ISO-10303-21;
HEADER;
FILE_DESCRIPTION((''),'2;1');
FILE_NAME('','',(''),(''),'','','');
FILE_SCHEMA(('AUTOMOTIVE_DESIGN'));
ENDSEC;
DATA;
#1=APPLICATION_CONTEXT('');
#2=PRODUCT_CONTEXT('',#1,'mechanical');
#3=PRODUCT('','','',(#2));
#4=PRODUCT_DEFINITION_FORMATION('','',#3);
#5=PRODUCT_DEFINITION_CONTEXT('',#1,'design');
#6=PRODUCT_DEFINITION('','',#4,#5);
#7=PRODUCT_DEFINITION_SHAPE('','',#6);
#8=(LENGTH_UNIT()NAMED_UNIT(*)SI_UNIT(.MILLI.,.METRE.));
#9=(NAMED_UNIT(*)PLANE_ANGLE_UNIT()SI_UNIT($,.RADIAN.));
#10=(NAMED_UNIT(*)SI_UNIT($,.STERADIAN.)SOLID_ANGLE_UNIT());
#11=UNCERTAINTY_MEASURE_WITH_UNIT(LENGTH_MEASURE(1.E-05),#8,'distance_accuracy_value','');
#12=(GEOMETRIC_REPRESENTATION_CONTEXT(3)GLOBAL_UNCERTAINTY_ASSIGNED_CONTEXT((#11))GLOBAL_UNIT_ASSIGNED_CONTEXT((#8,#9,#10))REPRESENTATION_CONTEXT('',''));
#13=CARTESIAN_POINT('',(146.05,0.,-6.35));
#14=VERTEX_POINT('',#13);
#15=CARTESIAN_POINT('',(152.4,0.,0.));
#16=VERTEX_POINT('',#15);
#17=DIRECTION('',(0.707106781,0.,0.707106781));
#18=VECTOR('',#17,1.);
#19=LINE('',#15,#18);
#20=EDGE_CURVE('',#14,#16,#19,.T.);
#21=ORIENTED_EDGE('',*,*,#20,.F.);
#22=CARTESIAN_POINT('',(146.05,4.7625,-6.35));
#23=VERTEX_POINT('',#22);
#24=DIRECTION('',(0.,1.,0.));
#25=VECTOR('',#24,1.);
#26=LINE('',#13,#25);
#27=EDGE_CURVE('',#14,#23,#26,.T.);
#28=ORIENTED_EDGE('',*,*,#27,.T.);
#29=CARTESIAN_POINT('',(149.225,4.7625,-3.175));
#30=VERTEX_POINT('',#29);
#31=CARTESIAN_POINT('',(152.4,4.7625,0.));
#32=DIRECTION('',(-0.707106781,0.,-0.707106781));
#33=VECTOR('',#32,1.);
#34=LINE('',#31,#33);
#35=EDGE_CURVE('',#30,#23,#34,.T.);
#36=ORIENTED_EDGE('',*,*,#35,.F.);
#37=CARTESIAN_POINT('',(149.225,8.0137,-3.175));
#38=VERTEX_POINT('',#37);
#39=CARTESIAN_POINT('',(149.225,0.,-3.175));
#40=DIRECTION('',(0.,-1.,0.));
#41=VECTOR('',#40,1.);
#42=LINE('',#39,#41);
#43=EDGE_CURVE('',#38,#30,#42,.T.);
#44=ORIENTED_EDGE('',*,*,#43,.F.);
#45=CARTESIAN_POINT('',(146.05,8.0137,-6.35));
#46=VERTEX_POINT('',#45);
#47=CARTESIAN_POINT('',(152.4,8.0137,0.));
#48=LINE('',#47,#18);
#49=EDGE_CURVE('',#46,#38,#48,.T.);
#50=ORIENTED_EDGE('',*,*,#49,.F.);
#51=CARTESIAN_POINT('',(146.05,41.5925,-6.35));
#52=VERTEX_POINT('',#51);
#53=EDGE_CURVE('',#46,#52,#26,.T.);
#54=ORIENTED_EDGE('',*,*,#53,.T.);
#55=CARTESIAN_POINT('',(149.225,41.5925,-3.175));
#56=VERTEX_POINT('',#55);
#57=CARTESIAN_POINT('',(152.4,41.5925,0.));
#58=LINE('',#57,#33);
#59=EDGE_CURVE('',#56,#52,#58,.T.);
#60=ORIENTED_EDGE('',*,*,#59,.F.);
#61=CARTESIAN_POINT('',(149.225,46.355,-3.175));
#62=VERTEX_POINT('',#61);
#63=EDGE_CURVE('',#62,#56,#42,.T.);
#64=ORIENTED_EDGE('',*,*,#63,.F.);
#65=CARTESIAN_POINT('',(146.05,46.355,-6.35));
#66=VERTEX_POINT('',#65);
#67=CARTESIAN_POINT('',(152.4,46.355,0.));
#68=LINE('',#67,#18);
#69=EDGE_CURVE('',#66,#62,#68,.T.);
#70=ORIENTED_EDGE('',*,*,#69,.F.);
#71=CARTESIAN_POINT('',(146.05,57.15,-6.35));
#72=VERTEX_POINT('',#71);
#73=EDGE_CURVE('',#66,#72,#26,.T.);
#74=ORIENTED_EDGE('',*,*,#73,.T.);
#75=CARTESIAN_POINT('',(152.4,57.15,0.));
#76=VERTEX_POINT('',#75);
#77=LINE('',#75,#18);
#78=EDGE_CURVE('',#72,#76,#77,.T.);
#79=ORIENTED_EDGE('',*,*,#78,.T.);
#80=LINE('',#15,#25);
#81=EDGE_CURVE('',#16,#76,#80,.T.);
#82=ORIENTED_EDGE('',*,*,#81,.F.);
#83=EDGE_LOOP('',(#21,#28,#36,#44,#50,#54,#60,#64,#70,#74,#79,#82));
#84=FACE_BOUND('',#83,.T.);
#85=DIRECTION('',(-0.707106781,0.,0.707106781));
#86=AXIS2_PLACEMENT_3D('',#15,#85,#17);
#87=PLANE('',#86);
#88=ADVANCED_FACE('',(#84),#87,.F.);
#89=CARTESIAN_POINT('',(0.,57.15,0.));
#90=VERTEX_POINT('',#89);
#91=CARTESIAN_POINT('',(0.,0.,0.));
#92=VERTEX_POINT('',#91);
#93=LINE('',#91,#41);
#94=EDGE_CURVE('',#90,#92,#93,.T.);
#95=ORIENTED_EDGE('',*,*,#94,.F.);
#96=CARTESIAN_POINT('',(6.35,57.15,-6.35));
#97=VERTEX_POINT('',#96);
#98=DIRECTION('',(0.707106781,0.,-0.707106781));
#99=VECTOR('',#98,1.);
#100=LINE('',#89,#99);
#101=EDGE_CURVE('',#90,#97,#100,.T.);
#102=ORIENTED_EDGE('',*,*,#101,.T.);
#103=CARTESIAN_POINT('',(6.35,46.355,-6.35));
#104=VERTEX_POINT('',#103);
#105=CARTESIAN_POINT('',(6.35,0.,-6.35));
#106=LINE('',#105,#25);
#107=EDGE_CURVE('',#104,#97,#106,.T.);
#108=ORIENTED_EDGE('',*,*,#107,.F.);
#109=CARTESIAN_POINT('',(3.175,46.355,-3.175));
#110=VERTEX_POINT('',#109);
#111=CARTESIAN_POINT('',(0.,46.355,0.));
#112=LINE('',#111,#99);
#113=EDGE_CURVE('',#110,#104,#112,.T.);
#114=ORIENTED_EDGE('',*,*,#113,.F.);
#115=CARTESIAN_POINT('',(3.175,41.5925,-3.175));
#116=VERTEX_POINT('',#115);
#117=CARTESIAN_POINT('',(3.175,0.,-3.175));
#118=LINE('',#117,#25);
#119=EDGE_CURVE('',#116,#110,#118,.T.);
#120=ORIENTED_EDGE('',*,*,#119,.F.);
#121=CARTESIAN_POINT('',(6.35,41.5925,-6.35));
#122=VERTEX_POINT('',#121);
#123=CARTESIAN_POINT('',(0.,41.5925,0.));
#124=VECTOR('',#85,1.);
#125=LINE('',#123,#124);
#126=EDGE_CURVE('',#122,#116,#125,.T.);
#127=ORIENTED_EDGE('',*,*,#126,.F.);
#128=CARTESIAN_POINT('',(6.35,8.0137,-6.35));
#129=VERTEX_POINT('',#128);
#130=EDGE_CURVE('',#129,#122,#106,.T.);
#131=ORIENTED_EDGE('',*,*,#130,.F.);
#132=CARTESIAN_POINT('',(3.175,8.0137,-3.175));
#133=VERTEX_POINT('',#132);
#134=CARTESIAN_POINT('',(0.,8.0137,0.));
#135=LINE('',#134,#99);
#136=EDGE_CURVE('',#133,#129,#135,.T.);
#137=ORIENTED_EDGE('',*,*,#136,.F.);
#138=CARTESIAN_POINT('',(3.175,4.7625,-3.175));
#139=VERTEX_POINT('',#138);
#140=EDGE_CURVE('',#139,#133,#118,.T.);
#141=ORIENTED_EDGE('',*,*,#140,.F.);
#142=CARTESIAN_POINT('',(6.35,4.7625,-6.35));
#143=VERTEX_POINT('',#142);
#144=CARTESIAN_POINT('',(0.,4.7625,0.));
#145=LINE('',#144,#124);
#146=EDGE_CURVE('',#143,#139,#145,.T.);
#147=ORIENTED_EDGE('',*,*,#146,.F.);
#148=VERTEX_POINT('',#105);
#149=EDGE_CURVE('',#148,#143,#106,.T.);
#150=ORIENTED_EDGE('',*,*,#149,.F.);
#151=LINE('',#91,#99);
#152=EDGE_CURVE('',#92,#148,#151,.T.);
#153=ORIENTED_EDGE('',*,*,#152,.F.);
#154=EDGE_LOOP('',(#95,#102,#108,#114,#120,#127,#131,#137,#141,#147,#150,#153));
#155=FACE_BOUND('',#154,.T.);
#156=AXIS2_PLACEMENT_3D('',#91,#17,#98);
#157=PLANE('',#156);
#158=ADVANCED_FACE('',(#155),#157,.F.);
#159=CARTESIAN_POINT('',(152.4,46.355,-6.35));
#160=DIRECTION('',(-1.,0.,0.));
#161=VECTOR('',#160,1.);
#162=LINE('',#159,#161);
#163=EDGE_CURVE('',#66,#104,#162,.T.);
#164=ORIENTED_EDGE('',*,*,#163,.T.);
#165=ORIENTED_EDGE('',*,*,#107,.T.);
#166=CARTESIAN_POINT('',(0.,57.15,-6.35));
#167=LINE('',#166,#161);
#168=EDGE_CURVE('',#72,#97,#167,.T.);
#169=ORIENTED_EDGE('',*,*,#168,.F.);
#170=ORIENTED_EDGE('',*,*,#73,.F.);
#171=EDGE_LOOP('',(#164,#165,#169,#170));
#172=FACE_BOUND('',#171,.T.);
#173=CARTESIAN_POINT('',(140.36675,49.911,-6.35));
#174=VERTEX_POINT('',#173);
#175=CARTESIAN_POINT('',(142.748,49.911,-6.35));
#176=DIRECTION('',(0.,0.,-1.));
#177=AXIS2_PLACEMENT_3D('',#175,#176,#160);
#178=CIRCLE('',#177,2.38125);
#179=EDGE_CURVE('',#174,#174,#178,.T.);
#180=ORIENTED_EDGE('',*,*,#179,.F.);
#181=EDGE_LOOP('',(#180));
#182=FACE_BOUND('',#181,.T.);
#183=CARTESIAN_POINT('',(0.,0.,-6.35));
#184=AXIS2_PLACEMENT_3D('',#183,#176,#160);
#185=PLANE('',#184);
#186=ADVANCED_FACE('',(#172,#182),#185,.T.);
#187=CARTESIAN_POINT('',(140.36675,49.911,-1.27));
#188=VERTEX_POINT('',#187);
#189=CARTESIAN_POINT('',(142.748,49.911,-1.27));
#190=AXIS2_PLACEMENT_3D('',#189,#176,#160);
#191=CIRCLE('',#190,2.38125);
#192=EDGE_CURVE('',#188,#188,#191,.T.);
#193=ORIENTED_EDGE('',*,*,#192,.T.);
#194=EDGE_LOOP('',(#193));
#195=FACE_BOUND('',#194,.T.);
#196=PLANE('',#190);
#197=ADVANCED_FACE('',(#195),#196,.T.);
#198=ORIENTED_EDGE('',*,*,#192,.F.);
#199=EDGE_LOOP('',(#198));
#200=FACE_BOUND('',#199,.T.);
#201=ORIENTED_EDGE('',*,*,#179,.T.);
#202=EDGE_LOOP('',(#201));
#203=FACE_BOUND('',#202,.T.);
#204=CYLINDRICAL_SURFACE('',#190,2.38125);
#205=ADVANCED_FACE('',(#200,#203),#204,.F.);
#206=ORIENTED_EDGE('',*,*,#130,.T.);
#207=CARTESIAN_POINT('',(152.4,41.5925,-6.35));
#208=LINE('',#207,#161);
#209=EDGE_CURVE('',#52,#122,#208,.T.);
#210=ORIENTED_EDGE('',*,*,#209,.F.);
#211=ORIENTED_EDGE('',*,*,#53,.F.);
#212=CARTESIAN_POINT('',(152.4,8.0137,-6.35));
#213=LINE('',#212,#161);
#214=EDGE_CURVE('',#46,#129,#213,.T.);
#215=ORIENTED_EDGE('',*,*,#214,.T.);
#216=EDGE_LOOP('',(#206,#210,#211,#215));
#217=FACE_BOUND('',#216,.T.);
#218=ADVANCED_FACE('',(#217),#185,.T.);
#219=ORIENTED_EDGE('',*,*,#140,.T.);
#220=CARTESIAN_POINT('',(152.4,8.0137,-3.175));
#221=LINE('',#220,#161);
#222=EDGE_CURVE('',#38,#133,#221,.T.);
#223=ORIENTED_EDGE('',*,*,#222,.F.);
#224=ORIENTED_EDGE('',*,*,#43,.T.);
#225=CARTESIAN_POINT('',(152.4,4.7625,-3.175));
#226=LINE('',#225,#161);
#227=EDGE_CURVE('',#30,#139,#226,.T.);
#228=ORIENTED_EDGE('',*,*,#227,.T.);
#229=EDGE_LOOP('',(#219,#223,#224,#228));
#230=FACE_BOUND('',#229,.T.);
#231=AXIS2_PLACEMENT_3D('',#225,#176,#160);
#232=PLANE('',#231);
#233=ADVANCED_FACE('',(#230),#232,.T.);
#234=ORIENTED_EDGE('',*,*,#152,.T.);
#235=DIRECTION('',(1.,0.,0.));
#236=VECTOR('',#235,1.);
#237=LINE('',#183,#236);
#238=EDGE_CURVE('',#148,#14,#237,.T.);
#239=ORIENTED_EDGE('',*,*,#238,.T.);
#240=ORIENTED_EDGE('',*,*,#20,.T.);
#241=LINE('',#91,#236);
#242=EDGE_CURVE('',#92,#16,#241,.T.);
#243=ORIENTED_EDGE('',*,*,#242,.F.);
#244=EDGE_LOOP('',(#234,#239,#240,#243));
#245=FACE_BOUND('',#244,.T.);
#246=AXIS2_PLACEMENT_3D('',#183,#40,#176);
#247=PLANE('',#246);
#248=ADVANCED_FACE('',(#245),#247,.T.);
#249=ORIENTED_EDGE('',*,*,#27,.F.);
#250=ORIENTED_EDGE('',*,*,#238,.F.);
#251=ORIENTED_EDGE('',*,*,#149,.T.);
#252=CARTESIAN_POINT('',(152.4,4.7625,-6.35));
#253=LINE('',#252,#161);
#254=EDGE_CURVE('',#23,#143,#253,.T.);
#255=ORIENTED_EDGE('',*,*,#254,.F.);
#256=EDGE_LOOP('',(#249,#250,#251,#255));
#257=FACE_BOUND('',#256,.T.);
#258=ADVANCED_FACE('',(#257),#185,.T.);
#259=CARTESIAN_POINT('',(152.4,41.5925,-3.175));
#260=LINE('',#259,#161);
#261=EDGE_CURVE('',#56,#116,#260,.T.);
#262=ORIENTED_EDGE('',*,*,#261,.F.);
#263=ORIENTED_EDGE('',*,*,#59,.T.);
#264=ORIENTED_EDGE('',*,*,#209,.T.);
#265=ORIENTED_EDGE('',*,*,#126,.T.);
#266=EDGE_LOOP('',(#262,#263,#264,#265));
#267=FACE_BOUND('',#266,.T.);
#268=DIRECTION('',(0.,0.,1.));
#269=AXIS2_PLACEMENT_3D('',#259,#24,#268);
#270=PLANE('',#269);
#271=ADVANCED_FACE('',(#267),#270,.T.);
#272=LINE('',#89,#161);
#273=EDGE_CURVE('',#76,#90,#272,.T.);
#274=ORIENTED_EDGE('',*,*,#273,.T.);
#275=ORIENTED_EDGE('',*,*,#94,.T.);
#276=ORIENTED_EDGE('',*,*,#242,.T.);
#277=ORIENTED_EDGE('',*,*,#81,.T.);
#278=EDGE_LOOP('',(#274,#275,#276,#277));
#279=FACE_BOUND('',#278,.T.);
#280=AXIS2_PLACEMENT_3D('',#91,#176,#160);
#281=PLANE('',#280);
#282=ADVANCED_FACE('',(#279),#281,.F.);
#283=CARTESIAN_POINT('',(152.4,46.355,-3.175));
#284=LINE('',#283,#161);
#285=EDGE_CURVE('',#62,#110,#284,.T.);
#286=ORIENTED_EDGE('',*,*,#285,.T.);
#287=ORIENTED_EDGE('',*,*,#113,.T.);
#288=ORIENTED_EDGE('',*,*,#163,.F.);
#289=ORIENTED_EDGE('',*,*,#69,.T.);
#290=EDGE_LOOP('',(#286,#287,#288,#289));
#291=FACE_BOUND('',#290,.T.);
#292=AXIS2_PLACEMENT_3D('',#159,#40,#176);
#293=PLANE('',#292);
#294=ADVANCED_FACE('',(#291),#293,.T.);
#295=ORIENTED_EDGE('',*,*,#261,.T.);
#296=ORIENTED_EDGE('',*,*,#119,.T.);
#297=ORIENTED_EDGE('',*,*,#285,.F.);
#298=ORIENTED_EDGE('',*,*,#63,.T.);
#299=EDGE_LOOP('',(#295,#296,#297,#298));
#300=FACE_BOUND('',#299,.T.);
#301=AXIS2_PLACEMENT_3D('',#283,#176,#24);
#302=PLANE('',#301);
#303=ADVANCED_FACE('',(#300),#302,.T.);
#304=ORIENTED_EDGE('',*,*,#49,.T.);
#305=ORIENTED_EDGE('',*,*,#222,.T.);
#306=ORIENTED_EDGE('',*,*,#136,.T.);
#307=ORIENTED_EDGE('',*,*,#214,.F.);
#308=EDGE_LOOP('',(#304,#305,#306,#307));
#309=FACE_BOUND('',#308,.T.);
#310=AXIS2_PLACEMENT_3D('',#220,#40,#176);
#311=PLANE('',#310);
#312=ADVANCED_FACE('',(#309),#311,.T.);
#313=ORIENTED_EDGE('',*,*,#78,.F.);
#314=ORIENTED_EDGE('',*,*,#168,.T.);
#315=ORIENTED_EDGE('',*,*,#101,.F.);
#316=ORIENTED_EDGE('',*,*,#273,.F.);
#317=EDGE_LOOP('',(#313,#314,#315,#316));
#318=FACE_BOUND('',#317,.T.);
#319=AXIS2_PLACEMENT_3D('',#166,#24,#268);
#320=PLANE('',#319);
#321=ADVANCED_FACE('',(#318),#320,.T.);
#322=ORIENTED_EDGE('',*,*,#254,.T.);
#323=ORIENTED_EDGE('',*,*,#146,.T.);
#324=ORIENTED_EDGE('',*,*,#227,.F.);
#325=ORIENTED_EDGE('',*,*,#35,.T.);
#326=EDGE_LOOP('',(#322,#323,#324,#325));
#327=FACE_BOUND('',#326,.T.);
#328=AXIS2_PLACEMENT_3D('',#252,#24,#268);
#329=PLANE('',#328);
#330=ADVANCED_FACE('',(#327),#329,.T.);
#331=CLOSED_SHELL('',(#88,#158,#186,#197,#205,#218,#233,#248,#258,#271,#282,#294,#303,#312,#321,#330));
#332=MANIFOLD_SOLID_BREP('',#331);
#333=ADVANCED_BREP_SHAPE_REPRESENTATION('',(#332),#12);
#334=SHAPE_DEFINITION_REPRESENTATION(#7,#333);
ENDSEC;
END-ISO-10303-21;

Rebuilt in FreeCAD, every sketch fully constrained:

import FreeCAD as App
import Part
import Sketcher
from FreeCAD import Vector
Q = App.Units.Quantity


def add_polygon(sketch, points):
    """Adds a closed chain of lines whose ends are joined by coincident constraints."""
    first, n = sketch.GeometryCount, len(points)
    for a, b in zip(points, points[1:] + points[:1]):
        sketch.addGeometry(Part.LineSegment(App.Vector(*a, 0), App.Vector(*b, 0)), False)
    for i in range(n):
        sketch.addConstraint(Sketcher.Constraint("Coincident", first + i, 2, first + (i + 1) % n, 1))

doc = App.newDocument("Part")
body = doc.addObject("PartDesign::Body", "Body")

# Sketch on XY plane
sketch1 = body.newObject("Sketcher::SketchObject", "Sketch")
sketch1.AttachmentSupport = (doc.getObject("XY_Plane"), [""])
sketch1.MapMode = "FlatFace"
add_polygon(sketch1, [(0, 57), (0, 0), (152, 0), (152, 57)])  # lines 0-3
sketch1.addConstraint([
    Sketcher.Constraint("Vertical", 0),
    Sketcher.Constraint("Horizontal", 1),
    Sketcher.Constraint("Vertical", 2),
    Sketcher.Constraint("Horizontal", 3),
    Sketcher.Constraint("Coincident", 0, 2, -1, 1),
    Sketcher.Constraint("DistanceX", 1, 1, 1, 2, Q("6 in")),
    Sketcher.Constraint("DistanceY", 0, 2, 0, 1, Q("2.25 in")),
])
pad1 = body.newObject("PartDesign::Pad", "Pad")
pad1.Profile = sketch1
pad1.Length = Q("0.25 in")
pad1.Reversed = True

# Sketch on XZ plane
sketch2 = body.newObject("Sketcher::SketchObject", "Sketch001")
sketch2.AttachmentSupport = (doc.getObject("XZ_Plane"), [""])
sketch2.MapMode = "FlatFace"
sketch2.AttachmentOffset = App.Placement(Vector(0, 0, -2.25 * 25.4), App.Rotation())
add_polygon(sketch2, [(146, -6), (152, 0), (152, -6)])  # lines 0-2
add_polygon(sketch2, [(0, 0), (6, -6), (0, -6)])  # lines 3-5
sketch2.addConstraint([
    Sketcher.Constraint("Vertical", 1),
    Sketcher.Constraint("Horizontal", 2),
    Sketcher.Constraint("Horizontal", 4),
    Sketcher.Constraint("Vertical", 5),
    Sketcher.Constraint("Coincident", 5, 2, -1, 1),
    Sketcher.Constraint("PointOnObject", 0, 2, -1),
    Sketcher.Constraint("Perpendicular", 0, 3),
    Sketcher.Constraint("Horizontal", 2, 2, 3, 2),
    Sketcher.Constraint("Equal", 2, 4),
    Sketcher.Constraint("DistanceX", -1, 1, 0, 2, Q("6 in")),
    Sketcher.Constraint("DistanceX", 2, 2, 2, 1, Q("0.25 in")),
])
pocket1 = body.newObject("PartDesign::Pocket", "Pocket")
pocket1.Profile = sketch2
pocket1.Type = "ThroughAll"
pocket1.Reversed = True

# Sketch on YZ plane
sketch3 = body.newObject("Sketcher::SketchObject", "Sketch002")
sketch3.AttachmentSupport = (doc.getObject("YZ_Plane"), [""])
sketch3.MapMode = "FlatFace"
add_polygon(sketch3, [(46.4, -3.2), (41.6, -3.2), (41.6, -6.3), (46.4, -6.3)])  # lines 0-3
sketch3.addConstraint([
    Sketcher.Constraint("Horizontal", 0),
    Sketcher.Constraint("Vertical", 1),
    Sketcher.Constraint("Horizontal", 2),
    Sketcher.Constraint("Vertical", 3),
    Sketcher.Constraint("DistanceX", 0, 2, 0, 1, Q("0.1875 in")),
    Sketcher.Constraint("DistanceY", 1, 2, 1, 1, Q("0.125 in")),
    Sketcher.Constraint("DistanceY", 1, 2, -1, 1, Q("0.25 in")),
    Sketcher.Constraint("DistanceX", -1, 1, 2, 2, Q("1.825 in")),
])
pocket2 = body.newObject("PartDesign::Pocket", "Pocket001")
pocket2.Profile = sketch3
pocket2.Type = "ThroughAll"
pocket2.Reversed = True

# Sketch on YZ plane
sketch4 = body.newObject("Sketcher::SketchObject", "Sketch003")
sketch4.AttachmentSupport = (doc.getObject("YZ_Plane"), [""])
sketch4.MapMode = "FlatFace"
add_polygon(sketch4, [(8, -3.2), (4.8, -3.2), (4.8, -6.3), (8, -6.3)])  # lines 0-3
sketch4.addConstraint([
    Sketcher.Constraint("Horizontal", 0),
    Sketcher.Constraint("Vertical", 1),
    Sketcher.Constraint("Horizontal", 2),
    Sketcher.Constraint("Vertical", 3),
    Sketcher.Constraint("DistanceX", 0, 2, 0, 1, Q("0.128 in")),
    Sketcher.Constraint("DistanceY", 1, 2, 1, 1, Q("0.125 in")),
    Sketcher.Constraint("DistanceY", 1, 2, -1, 1, Q("0.25 in")),
    Sketcher.Constraint("DistanceX", -1, 1, 0, 2, Q("0.1875 in")),
])
pocket3 = body.newObject("PartDesign::Pocket", "Pocket002")
pocket3.Profile = sketch4
pocket3.Type = "ThroughAll"
pocket3.Reversed = True

# Sketch on XY plane
sketch5 = body.newObject("Sketcher::SketchObject", "Sketch004")
sketch5.AttachmentSupport = (doc.getObject("XY_Plane"), [""])
sketch5.MapMode = "FlatFace"
sketch5.AttachmentOffset = App.Placement(Vector(0, 0, -0.25 * 25.4), App.Rotation())
sketch5.addGeometry(Part.Circle(Vector(142.7, 49.9, 0), Vector(0, 0, 1), 2.4), False)
sketch5.addConstraint([
    Sketcher.Constraint("Diameter", 0, Q("0.1875 in")),
    Sketcher.Constraint("DistanceX", -1, 1, 0, 3, Q("5.62 in")),
    Sketcher.Constraint("DistanceY", -1, 1, 0, 3, Q("1.965 in")),
])
pocket4 = body.newObject("PartDesign::Pocket", "Pocket003")
pocket4.Profile = sketch5
pocket4.Length = Q("0.2 in")
pocket4.Reversed = True

doc.recompute()
